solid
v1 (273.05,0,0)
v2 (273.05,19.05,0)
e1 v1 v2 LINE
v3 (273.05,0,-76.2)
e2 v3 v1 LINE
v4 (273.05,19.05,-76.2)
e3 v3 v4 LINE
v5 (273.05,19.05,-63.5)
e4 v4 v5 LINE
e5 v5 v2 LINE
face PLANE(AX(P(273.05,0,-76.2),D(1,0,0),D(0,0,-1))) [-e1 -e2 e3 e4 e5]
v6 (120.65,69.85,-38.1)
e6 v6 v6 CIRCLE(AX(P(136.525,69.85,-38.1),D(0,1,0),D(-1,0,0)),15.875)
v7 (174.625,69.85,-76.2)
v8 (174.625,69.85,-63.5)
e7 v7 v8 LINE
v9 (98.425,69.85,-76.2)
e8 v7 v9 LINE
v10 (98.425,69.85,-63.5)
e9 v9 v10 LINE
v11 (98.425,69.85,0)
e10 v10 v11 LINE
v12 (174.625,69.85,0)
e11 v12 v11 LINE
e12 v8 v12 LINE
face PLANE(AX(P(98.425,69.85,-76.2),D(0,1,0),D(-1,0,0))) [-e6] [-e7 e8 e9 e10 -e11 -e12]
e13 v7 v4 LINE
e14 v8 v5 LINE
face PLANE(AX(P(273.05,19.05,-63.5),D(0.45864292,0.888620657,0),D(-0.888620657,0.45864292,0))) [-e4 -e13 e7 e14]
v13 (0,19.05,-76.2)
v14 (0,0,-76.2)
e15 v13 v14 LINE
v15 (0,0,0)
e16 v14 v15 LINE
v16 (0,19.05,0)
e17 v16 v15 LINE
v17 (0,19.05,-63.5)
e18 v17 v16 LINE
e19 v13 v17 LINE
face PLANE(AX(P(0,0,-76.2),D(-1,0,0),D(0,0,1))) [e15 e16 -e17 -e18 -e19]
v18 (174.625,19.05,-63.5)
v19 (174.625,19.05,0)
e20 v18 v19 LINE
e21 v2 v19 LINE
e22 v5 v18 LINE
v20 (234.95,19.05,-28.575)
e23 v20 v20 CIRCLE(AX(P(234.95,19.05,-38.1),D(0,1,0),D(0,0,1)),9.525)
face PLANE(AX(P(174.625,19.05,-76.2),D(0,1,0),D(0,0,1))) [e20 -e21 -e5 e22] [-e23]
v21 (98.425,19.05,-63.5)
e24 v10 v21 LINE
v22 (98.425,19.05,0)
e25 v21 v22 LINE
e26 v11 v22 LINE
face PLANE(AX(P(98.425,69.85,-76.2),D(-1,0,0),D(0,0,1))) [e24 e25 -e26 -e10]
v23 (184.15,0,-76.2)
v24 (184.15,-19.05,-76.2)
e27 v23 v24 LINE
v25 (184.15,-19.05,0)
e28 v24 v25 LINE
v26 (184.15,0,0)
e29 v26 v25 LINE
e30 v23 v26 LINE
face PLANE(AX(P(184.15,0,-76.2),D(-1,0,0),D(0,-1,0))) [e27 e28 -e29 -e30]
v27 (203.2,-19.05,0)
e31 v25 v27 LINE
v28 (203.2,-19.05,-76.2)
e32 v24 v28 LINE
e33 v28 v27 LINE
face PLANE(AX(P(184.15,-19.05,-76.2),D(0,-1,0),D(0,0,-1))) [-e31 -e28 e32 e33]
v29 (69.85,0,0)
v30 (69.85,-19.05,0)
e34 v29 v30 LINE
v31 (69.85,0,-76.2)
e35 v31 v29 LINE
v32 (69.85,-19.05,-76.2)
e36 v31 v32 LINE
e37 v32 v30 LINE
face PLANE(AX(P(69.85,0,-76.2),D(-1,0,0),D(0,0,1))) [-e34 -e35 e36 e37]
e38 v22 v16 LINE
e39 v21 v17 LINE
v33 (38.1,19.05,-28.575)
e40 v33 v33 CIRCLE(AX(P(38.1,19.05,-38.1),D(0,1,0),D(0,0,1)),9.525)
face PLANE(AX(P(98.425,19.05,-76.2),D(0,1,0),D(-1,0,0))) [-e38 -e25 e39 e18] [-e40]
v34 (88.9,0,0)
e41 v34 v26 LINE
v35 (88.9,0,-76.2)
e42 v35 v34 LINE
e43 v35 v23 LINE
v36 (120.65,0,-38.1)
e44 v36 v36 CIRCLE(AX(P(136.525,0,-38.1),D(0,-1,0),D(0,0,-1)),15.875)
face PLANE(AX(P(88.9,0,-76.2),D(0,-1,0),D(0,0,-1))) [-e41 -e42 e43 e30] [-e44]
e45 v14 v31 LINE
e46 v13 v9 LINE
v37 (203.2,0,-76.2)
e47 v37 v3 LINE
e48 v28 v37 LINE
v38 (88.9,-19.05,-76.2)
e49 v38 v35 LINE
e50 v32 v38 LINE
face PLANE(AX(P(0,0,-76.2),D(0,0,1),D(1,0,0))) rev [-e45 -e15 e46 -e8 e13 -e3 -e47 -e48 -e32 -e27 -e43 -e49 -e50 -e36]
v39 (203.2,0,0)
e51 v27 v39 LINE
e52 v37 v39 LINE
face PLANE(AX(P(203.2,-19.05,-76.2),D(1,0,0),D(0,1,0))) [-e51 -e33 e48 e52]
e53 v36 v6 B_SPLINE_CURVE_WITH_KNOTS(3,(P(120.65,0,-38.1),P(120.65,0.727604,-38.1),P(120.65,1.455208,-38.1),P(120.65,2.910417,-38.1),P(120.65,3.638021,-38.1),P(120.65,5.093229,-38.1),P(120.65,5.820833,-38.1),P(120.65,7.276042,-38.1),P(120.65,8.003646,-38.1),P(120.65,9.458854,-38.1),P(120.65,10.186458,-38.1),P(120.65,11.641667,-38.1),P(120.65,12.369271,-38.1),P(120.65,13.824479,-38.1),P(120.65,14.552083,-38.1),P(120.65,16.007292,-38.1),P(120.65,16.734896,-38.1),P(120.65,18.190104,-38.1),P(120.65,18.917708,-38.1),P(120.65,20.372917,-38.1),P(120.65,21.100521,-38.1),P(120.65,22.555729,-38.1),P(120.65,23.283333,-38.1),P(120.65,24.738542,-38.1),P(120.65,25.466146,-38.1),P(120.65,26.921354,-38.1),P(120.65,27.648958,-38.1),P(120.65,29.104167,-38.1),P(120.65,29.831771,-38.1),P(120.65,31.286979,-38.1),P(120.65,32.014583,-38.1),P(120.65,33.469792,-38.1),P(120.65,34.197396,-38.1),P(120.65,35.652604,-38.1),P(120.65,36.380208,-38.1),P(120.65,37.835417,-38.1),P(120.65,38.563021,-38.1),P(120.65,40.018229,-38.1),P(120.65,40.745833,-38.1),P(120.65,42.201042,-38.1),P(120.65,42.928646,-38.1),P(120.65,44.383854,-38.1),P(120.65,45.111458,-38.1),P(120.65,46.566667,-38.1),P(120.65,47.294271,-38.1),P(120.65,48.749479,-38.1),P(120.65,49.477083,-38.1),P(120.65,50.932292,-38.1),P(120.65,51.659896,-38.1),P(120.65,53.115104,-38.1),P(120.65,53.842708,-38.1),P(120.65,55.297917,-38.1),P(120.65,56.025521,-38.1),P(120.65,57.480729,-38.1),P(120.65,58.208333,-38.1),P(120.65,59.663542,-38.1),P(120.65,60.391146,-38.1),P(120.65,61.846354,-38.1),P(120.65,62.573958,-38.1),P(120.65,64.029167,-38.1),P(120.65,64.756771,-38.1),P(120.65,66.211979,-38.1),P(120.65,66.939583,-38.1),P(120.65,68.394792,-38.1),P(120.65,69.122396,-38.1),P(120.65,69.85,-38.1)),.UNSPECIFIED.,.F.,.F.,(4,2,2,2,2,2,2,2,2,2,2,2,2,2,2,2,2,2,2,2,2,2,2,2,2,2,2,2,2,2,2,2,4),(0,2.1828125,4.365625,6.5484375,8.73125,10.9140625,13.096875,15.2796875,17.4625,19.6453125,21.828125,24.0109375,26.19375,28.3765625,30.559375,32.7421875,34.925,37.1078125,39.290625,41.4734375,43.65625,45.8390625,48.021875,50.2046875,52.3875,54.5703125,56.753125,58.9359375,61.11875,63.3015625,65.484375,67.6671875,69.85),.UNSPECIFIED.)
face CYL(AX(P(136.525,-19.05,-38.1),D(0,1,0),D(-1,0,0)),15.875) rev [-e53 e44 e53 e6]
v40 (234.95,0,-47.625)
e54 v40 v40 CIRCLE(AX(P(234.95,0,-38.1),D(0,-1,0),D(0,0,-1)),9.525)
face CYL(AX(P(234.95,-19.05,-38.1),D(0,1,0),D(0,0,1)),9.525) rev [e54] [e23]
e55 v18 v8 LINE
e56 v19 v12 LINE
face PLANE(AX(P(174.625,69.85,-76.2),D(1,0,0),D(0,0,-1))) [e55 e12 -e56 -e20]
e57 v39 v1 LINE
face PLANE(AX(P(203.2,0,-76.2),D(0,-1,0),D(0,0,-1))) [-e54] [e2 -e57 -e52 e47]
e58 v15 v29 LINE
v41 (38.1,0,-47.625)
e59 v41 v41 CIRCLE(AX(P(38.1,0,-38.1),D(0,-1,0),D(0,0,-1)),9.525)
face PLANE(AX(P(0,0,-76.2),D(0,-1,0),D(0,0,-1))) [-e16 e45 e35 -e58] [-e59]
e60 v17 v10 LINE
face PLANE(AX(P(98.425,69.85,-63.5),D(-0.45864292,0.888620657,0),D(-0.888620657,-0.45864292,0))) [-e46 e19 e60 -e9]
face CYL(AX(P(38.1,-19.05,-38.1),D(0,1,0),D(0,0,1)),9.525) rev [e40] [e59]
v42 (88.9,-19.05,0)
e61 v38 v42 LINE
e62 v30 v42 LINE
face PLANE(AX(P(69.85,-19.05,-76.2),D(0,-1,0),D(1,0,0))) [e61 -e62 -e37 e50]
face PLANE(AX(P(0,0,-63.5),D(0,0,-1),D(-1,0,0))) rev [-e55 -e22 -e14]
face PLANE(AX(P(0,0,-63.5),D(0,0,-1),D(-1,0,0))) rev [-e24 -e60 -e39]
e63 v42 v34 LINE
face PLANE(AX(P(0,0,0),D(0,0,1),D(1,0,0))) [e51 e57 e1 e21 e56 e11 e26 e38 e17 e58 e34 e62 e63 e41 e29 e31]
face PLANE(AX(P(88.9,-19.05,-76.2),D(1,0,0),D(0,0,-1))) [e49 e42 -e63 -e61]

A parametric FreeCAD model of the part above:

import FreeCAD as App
import Part
import Sketcher
Q = App.Units.Quantity

doc = App.newDocument("Part")
body = doc.addObject("PartDesign::Body", "Body")

# Sketch on XY plane
sketch1 = doc.addObject("Sketcher::SketchObject", "Sketch")
body.addObject(sketch1)
sketch1.AttachmentSupport = (doc.XY_Plane, [""])
sketch1.MapMode = "FlatFace"
sketch1.addGeometry(Part.LineSegment(App.Vector(0, 0, 0), App.Vector(70, 0, 0)), False)
sketch1.addGeometry(Part.LineSegment(App.Vector(70, 0, 0), App.Vector(70, -19, 0)), False)
sketch1.addGeometry(Part.LineSegment(App.Vector(70, -19, 0), App.Vector(89, -19, 0)), False)
sketch1.addGeometry(Part.LineSegment(App.Vector(89, -19, 0), App.Vector(89, 0, 0)), False)
sketch1.addGeometry(Part.LineSegment(App.Vector(89, 0, 0), App.Vector(184, 0, 0)), False)
sketch1.addGeometry(Part.LineSegment(App.Vector(184, 0, 0), App.Vector(184, -19, 0)), False)
sketch1.addGeometry(Part.LineSegment(App.Vector(184, -19, 0), App.Vector(203, -19, 0)), False)
sketch1.addGeometry(Part.LineSegment(App.Vector(203, -19, 0), App.Vector(203, 0, 0)), False)
sketch1.addGeometry(Part.LineSegment(App.Vector(203, 0, 0), App.Vector(273, 0, 0)), False)
sketch1.addGeometry(Part.LineSegment(App.Vector(273, 0, 0), App.Vector(273, 19, 0)), False)
sketch1.addGeometry(Part.LineSegment(App.Vector(273, 19, 0), App.Vector(175, 19, 0)), False)
sketch1.addGeometry(Part.LineSegment(App.Vector(175, 19, 0), App.Vector(175, 70, 0)), False)
sketch1.addGeometry(Part.LineSegment(App.Vector(175, 70, 0), App.Vector(98, 70, 0)), False)
sketch1.addGeometry(Part.LineSegment(App.Vector(98, 70, 0), App.Vector(98, 19, 0)), False)
sketch1.addGeometry(Part.LineSegment(App.Vector(98, 19, 0), App.Vector(0, 19, 0)), False)
sketch1.addGeometry(Part.LineSegment(App.Vector(0, 19, 0), App.Vector(0, 0, 0)), False)
sketch1.addConstraint(Sketcher.Constraint("Coincident", 0, 2, 1, 1))
sketch1.addConstraint(Sketcher.Constraint("Coincident", 1, 2, 2, 1))
sketch1.addConstraint(Sketcher.Constraint("Coincident", 2, 2, 3, 1))
sketch1.addConstraint(Sketcher.Constraint("Coincident", 3, 2, 4, 1))
sketch1.addConstraint(Sketcher.Constraint("Coincident", 4, 2, 5, 1))
sketch1.addConstraint(Sketcher.Constraint("Coincident", 5, 2, 6, 1))
sketch1.addConstraint(Sketcher.Constraint("Coincident", 6, 2, 7, 1))
sketch1.addConstraint(Sketcher.Constraint("Coincident", 7, 2, 8, 1))
sketch1.addConstraint(Sketcher.Constraint("Coincident", 8, 2, 9, 1))
sketch1.addConstraint(Sketcher.Constraint("Coincident", 9, 2, 10, 1))
sketch1.addConstraint(Sketcher.Constraint("Coincident", 10, 2, 11, 1))
sketch1.addConstraint(Sketcher.Constraint("Coincident", 11, 2, 12, 1))
sketch1.addConstraint(Sketcher.Constraint("Coincident", 12, 2, 13, 1))
sketch1.addConstraint(Sketcher.Constraint("Coincident", 13, 2, 14, 1))
sketch1.addConstraint(Sketcher.Constraint("Coincident", 14, 2, 15, 1))
sketch1.addConstraint(Sketcher.Constraint("Coincident", 15, 2, 0, 1))
sketch1.addConstraint(Sketcher.Constraint("Horizontal", 0))
sketch1.addConstraint(Sketcher.Constraint("Vertical", 1))
sketch1.addConstraint(Sketcher.Constraint("Horizontal", 2))
sketch1.addConstraint(Sketcher.Constraint("Vertical", 3))
sketch1.addConstraint(Sketcher.Constraint("Horizontal", 4))
sketch1.addConstraint(Sketcher.Constraint("Vertical", 5))
sketch1.addConstraint(Sketcher.Constraint("Horizontal", 6))
sketch1.addConstraint(Sketcher.Constraint("Vertical", 7))
sketch1.addConstraint(Sketcher.Constraint("Horizontal", 8))
sketch1.addConstraint(Sketcher.Constraint("Vertical", 9))
sketch1.addConstraint(Sketcher.Constraint("Horizontal", 10))
sketch1.addConstraint(Sketcher.Constraint("Vertical", 11))
sketch1.addConstraint(Sketcher.Constraint("Horizontal", 12))
sketch1.addConstraint(Sketcher.Constraint("Vertical", 13))
sketch1.addConstraint(Sketcher.Constraint("Horizontal", 14))
sketch1.addConstraint(Sketcher.Constraint("Vertical", 15))
sketch1.addConstraint(Sketcher.Constraint("Coincident", 15, 2, -1, 1))
sketch1.addConstraint(Sketcher.Constraint("PointOnObject", 3, 2, -1))
sketch1.addConstraint(Sketcher.Constraint("PointOnObject", 7, 2, -1))
sketch1.addConstraint(Sketcher.Constraint("Horizontal", 2, 2, 5, 2))
sketch1.addConstraint(Sketcher.Constraint("Horizontal", 10, 2, 13, 2))
sketch1.addConstraint(Sketcher.Constraint("Equal", 2, 6))
sketch1.addConstraint(Sketcher.Constraint("Equal", 0, 8))
sketch1.addConstraint(Sketcher.Constraint("Equal", 10, 14))
sketch1.addConstraint(Sketcher.Constraint("Equal", 6, 1))
sketch1.addConstraint(Sketcher.Constraint("Equal", 7, 9))
sketch1.addConstraint(Sketcher.Constraint("DistanceX", 12, 2, 12, 1, Q("3 in")))
sketch1.addConstraint(Sketcher.Constraint("DistanceY", 11, 1, 11, 2, Q("2 in")))
sketch1.addConstraint(Sketcher.Constraint("DistanceX", -1, 1, 6, 2, Q("8 in")))
sketch1.addConstraint(Sketcher.Constraint("DistanceX", 0, 1, 0, 2, Q("2.75 in")))
sketch1.addConstraint(Sketcher.Constraint("DistanceX", 2, 1, 2, 2, Q("0.75 in")))
pad1 = doc.addObject("PartDesign::Pad", "Pad")
body.addObject(pad1)
pad1.Profile = sketch1
pad1.Length = Q("3 in")
pad1.Reversed = True

# Sketch on XY plane
sketch2 = doc.addObject("Sketcher::SketchObject", "Sketch001")
body.addObject(sketch2)
sketch2.AttachmentSupport = (doc.XY_Plane, [""])
sketch2.MapMode = "FlatFace"
sketch2.AttachmentOffset = App.Placement(App.Vector(0, 0, -3 * 25.4), App.Rotation())
sketch2.addGeometry(Part.LineSegment(App.Vector(0, 19, 0), App.Vector(98, 70, 0)), False)
sketch2.addGeometry(Part.LineSegment(App.Vector(98, 70, 0), App.Vector(98, 19, 0)), False)
sketch2.addGeometry(Part.LineSegment(App.Vector(98, 19, 0), App.Vector(0, 19, 0)), False)
sketch2.addGeometry(Part.LineSegment(App.Vector(175, 70, 0), App.Vector(273, 19, 0)), False)
sketch2.addGeometry(Part.LineSegment(App.Vector(273, 19, 0), App.Vector(175, 19, 0)), False)
sketch2.addGeometry(Part.LineSegment(App.Vector(175, 19, 0), App.Vector(175, 70, 0)), False)
sketch2.addConstraint(Sketcher.Constraint("Coincident", 0, 2, 1, 1))
sketch2.addConstraint(Sketcher.Constraint("Coincident", 1, 2, 2, 1))
sketch2.addConstraint(Sketcher.Constraint("Coincident", 2, 2, 0, 1))
sketch2.addConstraint(Sketcher.Constraint("Coincident", 3, 2, 4, 1))
sketch2.addConstraint(Sketcher.Constraint("Coincident", 4, 2, 5, 1))
sketch2.addConstraint(Sketcher.Constraint("Coincident", 5, 2, 3, 1))
sketch2.addConstraint(Sketcher.Constraint("Vertical", 1))
sketch2.addConstraint(Sketcher.Constraint("Horizontal", 2))
sketch2.addConstraint(Sketcher.Constraint("Horizontal", 4))
sketch2.addConstraint(Sketcher.Constraint("Vertical", 5))
sketch2.addConstraint(Sketcher.Constraint("PointOnObject", 2, 2, -2))
sketch2.addConstraint(Sketcher.Constraint("Horizontal", 2, 2, 3, 2))
sketch2.addConstraint(Sketcher.Constraint("Horizontal", 0, 2, 5, 2))
sketch2.addConstraint(Sketcher.Constraint("Equal", 2, 4))
sketch2.addConstraint(Sketcher.Constraint("DistanceY", 1, 2, 1, 1, Q("2 in")))
sketch2.addConstraint(Sketcher.Constraint("DistanceX", 1, 2, 4, 2, Q("3 in")))
sketch2.addConstraint(Sketcher.Constraint("DistanceX", 2, 2, 2, 1, Q("3.875 in")))
sketch2.addConstraint(Sketcher.Constraint("DistanceY", -1, 1, 0, 2, Q("2.75 in")))
pad2 = doc.addObject("PartDesign::Pad", "Pad001")
body.addObject(pad2)
pad2.Profile = sketch2
pad2.Length = Q("0.5 in")

# Sketch on XZ plane
sketch3 = doc.addObject("Sketcher::SketchObject", "Sketch002")
body.addObject(sketch3)
sketch3.AttachmentSupport = (doc.XZ_Plane, [""])
sketch3.MapMode = "FlatFace"
sketch3.AttachmentOffset = App.Placement(App.Vector(0, 0, -2.75 * 25.4), App.Rotation())
sketch3.addGeometry(Part.Circle(App.Vector(137, -38, 0), App.Vector(0, 0, 1), 16), False)
sketch3.addConstraint(Sketcher.Constraint("Diameter", 0, Q("1.25 in")))
sketch3.addConstraint(Sketcher.Constraint("DistanceY", 0, 3, -1, 1, Q("1.5 in")))
sketch3.addConstraint(Sketcher.Constraint("DistanceX", -1, 1, 0, 3, Q("5.375 in")))
pocket1 = doc.addObject("PartDesign::Pocket", "Pocket")
body.addObject(pocket1)
pocket1.Profile = sketch3
pocket1.Type = "ThroughAll"
pocket1.Reversed = True

# Sketch on XZ plane
sketch4 = doc.addObject("Sketcher::SketchObject", "Sketch003")
body.addObject(sketch4)
sketch4.AttachmentSupport = (doc.XZ_Plane, [""])
sketch4.MapMode = "FlatFace"
sketch4.AttachmentOffset = App.Placement(App.Vector(0, 0, -0.75 * 25.4), App.Rotation())
sketch4.addGeometry(Part.Circle(App.Vector(235, -38, 0), App.Vector(0, 0, 1), 10), False)
sketch4.addGeometry(Part.Circle(App.Vector(38, -38, 0), App.Vector(0, 0, 1), 10), False)
sketch4.addConstraint(Sketcher.Constraint("Equal", 0, 1))
sketch4.addConstraint(Sketcher.Constraint("Horizontal", 0, 3, 1, 3))
sketch4.addConstraint(Sketcher.Constraint("Diameter", 0, Q("0.75 in")))
sketch4.addConstraint(Sketcher.Constraint("DistanceY", 0, 3, -1, 1, Q("1.5 in")))
sketch4.addConstraint(Sketcher.Constraint("DistanceX", -1, 1, 1, 3, Q("1.5 in")))
sketch4.addConstraint(Sketcher.Constraint("DistanceX", -1, 1, 0, 3, Q("9.25 in")))
pocket2 = doc.addObject("PartDesign::Pocket", "Pocket001")
body.addObject(pocket2)
pocket2.Profile = sketch4
pocket2.Type = "ThroughAll"
pocket2.Reversed = True

doc.recompute()
